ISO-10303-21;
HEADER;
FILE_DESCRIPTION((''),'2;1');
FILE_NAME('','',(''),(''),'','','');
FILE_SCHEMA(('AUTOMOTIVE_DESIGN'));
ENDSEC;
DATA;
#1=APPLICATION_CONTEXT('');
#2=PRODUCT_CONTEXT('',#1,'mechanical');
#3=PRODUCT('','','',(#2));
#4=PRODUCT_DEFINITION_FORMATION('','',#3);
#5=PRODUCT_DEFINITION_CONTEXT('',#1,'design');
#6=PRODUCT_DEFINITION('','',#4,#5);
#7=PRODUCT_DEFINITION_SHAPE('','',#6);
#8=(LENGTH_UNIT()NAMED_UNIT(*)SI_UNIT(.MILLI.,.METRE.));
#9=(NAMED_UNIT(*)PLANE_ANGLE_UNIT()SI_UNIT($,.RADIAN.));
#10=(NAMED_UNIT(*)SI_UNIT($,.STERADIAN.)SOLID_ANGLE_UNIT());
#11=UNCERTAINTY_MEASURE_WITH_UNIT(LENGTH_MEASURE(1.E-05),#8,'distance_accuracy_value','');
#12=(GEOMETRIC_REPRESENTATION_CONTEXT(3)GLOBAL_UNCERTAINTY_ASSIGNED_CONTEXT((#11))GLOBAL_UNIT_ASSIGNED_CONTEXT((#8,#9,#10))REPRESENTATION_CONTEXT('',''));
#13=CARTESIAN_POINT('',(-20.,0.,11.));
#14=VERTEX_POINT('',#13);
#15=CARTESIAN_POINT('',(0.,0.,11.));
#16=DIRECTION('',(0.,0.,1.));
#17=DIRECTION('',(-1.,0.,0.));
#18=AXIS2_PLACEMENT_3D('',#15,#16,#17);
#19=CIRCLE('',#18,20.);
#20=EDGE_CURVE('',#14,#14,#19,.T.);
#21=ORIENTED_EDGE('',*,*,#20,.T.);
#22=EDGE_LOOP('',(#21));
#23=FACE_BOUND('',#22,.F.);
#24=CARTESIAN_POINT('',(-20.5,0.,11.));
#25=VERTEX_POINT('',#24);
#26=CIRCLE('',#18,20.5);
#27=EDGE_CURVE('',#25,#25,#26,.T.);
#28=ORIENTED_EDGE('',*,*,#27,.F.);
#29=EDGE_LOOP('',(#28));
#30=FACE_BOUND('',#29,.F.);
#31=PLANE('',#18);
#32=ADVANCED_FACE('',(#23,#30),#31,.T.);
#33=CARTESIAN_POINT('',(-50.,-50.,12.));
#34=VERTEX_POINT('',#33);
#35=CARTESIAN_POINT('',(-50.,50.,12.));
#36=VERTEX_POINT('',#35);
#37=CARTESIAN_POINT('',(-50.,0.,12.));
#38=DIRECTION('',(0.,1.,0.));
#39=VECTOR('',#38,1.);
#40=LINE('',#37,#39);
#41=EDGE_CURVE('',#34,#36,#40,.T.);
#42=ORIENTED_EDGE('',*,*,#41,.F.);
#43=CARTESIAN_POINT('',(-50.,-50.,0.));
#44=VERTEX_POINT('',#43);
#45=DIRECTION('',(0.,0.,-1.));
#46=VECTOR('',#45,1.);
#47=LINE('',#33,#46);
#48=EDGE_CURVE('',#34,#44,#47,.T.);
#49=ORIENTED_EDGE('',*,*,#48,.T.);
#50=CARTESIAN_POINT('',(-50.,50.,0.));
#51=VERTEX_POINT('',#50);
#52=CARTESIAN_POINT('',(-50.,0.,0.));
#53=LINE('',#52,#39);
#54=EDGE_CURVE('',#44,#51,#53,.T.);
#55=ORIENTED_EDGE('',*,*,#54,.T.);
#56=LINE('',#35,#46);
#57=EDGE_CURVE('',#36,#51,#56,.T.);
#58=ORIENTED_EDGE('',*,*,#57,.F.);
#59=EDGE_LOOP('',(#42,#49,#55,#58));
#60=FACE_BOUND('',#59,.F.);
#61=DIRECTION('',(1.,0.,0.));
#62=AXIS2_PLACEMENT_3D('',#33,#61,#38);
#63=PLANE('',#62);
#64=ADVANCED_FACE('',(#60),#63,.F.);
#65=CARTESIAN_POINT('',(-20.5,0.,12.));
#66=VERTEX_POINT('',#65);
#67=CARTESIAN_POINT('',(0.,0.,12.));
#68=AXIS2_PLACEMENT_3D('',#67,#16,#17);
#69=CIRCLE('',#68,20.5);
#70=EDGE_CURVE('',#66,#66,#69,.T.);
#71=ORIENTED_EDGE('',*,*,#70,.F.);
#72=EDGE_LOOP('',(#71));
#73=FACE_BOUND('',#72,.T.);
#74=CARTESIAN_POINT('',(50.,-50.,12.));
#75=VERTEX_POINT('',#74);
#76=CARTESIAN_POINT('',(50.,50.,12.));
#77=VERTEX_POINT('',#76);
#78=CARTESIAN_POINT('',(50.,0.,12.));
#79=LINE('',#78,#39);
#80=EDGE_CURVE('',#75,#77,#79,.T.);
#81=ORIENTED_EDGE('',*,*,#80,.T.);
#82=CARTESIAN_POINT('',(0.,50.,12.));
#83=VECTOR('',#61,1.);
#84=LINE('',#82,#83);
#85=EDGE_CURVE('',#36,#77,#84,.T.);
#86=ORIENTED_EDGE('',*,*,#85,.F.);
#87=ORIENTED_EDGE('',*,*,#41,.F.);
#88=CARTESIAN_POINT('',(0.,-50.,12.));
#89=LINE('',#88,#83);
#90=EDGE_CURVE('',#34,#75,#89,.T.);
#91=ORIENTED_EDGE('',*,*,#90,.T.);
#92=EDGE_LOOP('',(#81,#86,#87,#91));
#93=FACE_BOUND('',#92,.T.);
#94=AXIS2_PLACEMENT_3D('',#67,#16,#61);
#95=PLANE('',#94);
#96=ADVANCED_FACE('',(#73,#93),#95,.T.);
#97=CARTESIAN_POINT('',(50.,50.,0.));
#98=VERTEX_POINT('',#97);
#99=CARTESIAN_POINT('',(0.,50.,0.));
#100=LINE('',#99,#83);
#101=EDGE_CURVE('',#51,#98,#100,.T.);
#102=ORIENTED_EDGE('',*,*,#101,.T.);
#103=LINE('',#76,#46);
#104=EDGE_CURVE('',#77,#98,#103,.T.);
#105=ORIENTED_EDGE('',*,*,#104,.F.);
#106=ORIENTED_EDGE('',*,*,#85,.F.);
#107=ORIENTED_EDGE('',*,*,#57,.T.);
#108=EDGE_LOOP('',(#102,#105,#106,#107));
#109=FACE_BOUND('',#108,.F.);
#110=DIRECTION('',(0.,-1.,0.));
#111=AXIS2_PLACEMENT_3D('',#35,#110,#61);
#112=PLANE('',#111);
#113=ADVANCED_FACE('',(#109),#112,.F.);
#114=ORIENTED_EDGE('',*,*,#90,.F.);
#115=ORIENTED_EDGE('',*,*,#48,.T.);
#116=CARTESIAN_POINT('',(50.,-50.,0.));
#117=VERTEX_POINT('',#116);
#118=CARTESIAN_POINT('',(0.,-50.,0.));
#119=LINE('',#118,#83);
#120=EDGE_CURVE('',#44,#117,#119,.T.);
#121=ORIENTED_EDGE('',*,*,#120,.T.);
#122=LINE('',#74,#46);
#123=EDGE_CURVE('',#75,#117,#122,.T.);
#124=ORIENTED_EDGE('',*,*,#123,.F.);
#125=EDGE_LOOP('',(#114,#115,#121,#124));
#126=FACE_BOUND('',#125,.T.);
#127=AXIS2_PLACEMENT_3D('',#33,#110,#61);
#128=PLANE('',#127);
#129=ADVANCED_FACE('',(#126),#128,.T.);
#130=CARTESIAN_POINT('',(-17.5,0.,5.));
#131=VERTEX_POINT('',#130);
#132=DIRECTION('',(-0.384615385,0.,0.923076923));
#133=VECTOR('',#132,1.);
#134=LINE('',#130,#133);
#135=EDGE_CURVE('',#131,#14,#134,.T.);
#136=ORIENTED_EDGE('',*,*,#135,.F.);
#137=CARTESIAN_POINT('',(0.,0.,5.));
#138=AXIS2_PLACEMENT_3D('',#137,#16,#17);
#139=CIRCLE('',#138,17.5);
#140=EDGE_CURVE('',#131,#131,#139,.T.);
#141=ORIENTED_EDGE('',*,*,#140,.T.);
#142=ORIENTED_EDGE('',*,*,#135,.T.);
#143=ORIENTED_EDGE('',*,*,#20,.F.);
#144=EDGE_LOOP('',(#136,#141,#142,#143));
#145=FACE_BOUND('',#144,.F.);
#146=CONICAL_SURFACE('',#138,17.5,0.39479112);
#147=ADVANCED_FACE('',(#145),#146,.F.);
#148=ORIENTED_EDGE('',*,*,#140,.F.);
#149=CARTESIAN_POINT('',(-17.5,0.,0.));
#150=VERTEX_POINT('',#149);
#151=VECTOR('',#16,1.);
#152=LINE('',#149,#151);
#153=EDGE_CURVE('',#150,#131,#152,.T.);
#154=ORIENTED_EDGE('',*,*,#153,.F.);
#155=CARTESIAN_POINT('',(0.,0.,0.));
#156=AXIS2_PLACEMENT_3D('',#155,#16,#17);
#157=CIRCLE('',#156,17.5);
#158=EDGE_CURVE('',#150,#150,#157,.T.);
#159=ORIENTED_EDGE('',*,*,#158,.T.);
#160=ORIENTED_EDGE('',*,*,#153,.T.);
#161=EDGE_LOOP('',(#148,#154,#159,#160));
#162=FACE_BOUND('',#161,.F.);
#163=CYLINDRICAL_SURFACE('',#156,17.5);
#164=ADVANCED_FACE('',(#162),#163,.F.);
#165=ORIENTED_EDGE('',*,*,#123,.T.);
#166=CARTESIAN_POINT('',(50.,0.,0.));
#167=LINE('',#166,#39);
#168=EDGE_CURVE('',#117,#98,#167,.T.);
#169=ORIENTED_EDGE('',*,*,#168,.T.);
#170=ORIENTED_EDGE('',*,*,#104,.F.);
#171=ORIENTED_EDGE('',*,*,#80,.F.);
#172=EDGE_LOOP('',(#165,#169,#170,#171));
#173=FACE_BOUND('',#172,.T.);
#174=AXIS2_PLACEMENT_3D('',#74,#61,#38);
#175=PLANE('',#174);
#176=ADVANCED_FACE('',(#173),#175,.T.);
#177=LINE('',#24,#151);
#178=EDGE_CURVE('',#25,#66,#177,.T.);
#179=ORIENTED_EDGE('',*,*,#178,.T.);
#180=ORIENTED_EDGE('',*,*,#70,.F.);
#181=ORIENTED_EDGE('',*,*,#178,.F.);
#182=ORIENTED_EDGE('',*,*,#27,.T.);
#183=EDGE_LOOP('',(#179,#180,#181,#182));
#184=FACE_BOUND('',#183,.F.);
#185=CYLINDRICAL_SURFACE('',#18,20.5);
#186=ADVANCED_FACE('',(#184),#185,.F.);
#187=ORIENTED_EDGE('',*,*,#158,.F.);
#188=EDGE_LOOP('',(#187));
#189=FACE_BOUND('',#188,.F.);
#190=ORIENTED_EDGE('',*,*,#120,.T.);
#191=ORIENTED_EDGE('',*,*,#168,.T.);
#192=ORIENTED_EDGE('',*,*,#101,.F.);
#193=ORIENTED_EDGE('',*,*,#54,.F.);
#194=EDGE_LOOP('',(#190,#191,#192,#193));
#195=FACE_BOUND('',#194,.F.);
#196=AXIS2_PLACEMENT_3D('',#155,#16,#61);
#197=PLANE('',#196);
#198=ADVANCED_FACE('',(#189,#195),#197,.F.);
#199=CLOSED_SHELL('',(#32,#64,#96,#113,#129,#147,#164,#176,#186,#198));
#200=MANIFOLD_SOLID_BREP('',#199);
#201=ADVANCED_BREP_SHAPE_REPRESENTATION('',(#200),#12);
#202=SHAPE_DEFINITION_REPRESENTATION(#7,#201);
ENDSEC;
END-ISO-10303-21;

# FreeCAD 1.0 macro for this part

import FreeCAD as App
import Part
import Sketcher
from FreeCAD import Vector

doc = App.newDocument("Part")
body = doc.addObject("PartDesign::Body", "Body")

# Sketch on XZ plane
sketch1 = doc.addObject("Sketcher::SketchObject", "Sketch")
body.addObject(sketch1)
sketch1.AttachmentSupport = (doc.XZ_Plane, [""])
sketch1.MapMode = "FlatFace"
sketch1.addGeometry([
    Part.LineSegment(Vector(-40, 0, 0), Vector(-17.5, 0, 0)),  # 0
    Part.LineSegment(Vector(-17.5, 0, 0), Vector(-17.5, 5, 0)),  # 1
    Part.LineSegment(Vector(-17.5, 5, 0), Vector(-20, 11, 0)),  # 2
    Part.LineSegment(Vector(-20, 11, 0), Vector(-20.5, 11, 0)),  # 3
    Part.LineSegment(Vector(-20.5, 11, 0), Vector(-20.5, 12, 0)),  # 4
    Part.LineSegment(Vector(-20.5, 12, 0), Vector(-40, 12, 0)),  # 5
    Part.LineSegment(Vector(-40, 12, 0), Vector(-40, 0, 0)),  # 6
], False)
sketch1.addConstraint([
    Sketcher.Constraint("Coincident", 0, 2, 1, 1),
    Sketcher.Constraint("Coincident", 1, 2, 2, 1),
    Sketcher.Constraint("Coincident", 2, 2, 3, 1),
    Sketcher.Constraint("Coincident", 3, 2, 4, 1),
    Sketcher.Constraint("Coincident", 4, 2, 5, 1),
    Sketcher.Constraint("Coincident", 5, 2, 6, 1),
    Sketcher.Constraint("Coincident", 6, 2, 0, 1),
    Sketcher.Constraint("Horizontal", 0),
    Sketcher.Constraint("Vertical", 1),
    Sketcher.Constraint("Horizontal", 3),
    Sketcher.Constraint("Vertical", 4),
    Sketcher.Constraint("Horizontal", 5),
    Sketcher.Constraint("Vertical", 6),
    Sketcher.Constraint("PointOnObject", 0, 2, -1),
    Sketcher.Constraint("DistanceY", 1, 1, 1, 2, 5.0),
    Sketcher.Constraint("DistanceY", 4, 1, 4, 2, 1.0),
    Sketcher.Constraint("DistanceY", 6, 2, 6, 1, 12.0),
    Sketcher.Constraint("DistanceX", 0, 1, 0, 2, 22.5),
    Sketcher.Constraint("DistanceX", 3, 2, 3, 1, 0.5),
    Sketcher.Constraint("DistanceX", 5, 2, 5, 1, 19.5),
    Sketcher.Constraint("DistanceX", 2, 2, -1, 1, 20.0),
])
revolution = doc.addObject("PartDesign::Revolution", "Revolution")
body.addObject(revolution)
revolution.Profile = sketch1
revolution.ReferenceAxis = (sketch1, ["V_Axis"])
revolution.Angle = 360

# Sketch on XY plane
sketch2 = doc.addObject("Sketcher::SketchObject", "Sketch001")
body.addObject(sketch2)
sketch2.AttachmentSupport = (doc.XY_Plane, [""])
sketch2.MapMode = "FlatFace"
sketch2.AttachmentOffset = App.Placement(Vector(0, 0, 12), App.Rotation())
sketch2.addGeometry([
    Part.LineSegment(Vector(-50, 50, 0), Vector(-50, -50, 0)),  # 0
    Part.LineSegment(Vector(-50, -50, 0), Vector(50, -50, 0)),  # 1
    Part.LineSegment(Vector(50, -50, 0), Vector(50, 50, 0)),  # 2
    Part.LineSegment(Vector(50, 50, 0), Vector(-50, 50, 0)),  # 3
    Part.Circle(Vector(0, 0, 0), Vector(0, 0, 1), 40),  # 4
], False)
sketch2.addConstraint([
    Sketcher.Constraint("Coincident", 0, 2, 1, 1),
    Sketcher.Constraint("Coincident", 1, 2, 2, 1),
    Sketcher.Constraint("Coincident", 2, 2, 3, 1),
    Sketcher.Constraint("Coincident", 3, 2, 0, 1),
    Sketcher.Constraint("Vertical", 0),
    Sketcher.Constraint("Horizontal", 1),
    Sketcher.Constraint("Vertical", 2),
    Sketcher.Constraint("Horizontal", 3),
    Sketcher.Constraint("Coincident", 4, 3, -1, 1),
    Sketcher.Constraint("Symmetric", 0, 2, 2, 2, -1, 1),
    Sketcher.Constraint("Equal", 3, 0),
    Sketcher.Constraint("Diameter", 4, 80.0),
    Sketcher.Constraint("DistanceX", 1, 1, 1, 2, 100.0),
])
pad1 = doc.addObject("PartDesign::Pad", "Pad")
body.addObject(pad1)
pad1.Profile = sketch2
pad1.Length = 12
pad1.Reversed = True

doc.recompute()
